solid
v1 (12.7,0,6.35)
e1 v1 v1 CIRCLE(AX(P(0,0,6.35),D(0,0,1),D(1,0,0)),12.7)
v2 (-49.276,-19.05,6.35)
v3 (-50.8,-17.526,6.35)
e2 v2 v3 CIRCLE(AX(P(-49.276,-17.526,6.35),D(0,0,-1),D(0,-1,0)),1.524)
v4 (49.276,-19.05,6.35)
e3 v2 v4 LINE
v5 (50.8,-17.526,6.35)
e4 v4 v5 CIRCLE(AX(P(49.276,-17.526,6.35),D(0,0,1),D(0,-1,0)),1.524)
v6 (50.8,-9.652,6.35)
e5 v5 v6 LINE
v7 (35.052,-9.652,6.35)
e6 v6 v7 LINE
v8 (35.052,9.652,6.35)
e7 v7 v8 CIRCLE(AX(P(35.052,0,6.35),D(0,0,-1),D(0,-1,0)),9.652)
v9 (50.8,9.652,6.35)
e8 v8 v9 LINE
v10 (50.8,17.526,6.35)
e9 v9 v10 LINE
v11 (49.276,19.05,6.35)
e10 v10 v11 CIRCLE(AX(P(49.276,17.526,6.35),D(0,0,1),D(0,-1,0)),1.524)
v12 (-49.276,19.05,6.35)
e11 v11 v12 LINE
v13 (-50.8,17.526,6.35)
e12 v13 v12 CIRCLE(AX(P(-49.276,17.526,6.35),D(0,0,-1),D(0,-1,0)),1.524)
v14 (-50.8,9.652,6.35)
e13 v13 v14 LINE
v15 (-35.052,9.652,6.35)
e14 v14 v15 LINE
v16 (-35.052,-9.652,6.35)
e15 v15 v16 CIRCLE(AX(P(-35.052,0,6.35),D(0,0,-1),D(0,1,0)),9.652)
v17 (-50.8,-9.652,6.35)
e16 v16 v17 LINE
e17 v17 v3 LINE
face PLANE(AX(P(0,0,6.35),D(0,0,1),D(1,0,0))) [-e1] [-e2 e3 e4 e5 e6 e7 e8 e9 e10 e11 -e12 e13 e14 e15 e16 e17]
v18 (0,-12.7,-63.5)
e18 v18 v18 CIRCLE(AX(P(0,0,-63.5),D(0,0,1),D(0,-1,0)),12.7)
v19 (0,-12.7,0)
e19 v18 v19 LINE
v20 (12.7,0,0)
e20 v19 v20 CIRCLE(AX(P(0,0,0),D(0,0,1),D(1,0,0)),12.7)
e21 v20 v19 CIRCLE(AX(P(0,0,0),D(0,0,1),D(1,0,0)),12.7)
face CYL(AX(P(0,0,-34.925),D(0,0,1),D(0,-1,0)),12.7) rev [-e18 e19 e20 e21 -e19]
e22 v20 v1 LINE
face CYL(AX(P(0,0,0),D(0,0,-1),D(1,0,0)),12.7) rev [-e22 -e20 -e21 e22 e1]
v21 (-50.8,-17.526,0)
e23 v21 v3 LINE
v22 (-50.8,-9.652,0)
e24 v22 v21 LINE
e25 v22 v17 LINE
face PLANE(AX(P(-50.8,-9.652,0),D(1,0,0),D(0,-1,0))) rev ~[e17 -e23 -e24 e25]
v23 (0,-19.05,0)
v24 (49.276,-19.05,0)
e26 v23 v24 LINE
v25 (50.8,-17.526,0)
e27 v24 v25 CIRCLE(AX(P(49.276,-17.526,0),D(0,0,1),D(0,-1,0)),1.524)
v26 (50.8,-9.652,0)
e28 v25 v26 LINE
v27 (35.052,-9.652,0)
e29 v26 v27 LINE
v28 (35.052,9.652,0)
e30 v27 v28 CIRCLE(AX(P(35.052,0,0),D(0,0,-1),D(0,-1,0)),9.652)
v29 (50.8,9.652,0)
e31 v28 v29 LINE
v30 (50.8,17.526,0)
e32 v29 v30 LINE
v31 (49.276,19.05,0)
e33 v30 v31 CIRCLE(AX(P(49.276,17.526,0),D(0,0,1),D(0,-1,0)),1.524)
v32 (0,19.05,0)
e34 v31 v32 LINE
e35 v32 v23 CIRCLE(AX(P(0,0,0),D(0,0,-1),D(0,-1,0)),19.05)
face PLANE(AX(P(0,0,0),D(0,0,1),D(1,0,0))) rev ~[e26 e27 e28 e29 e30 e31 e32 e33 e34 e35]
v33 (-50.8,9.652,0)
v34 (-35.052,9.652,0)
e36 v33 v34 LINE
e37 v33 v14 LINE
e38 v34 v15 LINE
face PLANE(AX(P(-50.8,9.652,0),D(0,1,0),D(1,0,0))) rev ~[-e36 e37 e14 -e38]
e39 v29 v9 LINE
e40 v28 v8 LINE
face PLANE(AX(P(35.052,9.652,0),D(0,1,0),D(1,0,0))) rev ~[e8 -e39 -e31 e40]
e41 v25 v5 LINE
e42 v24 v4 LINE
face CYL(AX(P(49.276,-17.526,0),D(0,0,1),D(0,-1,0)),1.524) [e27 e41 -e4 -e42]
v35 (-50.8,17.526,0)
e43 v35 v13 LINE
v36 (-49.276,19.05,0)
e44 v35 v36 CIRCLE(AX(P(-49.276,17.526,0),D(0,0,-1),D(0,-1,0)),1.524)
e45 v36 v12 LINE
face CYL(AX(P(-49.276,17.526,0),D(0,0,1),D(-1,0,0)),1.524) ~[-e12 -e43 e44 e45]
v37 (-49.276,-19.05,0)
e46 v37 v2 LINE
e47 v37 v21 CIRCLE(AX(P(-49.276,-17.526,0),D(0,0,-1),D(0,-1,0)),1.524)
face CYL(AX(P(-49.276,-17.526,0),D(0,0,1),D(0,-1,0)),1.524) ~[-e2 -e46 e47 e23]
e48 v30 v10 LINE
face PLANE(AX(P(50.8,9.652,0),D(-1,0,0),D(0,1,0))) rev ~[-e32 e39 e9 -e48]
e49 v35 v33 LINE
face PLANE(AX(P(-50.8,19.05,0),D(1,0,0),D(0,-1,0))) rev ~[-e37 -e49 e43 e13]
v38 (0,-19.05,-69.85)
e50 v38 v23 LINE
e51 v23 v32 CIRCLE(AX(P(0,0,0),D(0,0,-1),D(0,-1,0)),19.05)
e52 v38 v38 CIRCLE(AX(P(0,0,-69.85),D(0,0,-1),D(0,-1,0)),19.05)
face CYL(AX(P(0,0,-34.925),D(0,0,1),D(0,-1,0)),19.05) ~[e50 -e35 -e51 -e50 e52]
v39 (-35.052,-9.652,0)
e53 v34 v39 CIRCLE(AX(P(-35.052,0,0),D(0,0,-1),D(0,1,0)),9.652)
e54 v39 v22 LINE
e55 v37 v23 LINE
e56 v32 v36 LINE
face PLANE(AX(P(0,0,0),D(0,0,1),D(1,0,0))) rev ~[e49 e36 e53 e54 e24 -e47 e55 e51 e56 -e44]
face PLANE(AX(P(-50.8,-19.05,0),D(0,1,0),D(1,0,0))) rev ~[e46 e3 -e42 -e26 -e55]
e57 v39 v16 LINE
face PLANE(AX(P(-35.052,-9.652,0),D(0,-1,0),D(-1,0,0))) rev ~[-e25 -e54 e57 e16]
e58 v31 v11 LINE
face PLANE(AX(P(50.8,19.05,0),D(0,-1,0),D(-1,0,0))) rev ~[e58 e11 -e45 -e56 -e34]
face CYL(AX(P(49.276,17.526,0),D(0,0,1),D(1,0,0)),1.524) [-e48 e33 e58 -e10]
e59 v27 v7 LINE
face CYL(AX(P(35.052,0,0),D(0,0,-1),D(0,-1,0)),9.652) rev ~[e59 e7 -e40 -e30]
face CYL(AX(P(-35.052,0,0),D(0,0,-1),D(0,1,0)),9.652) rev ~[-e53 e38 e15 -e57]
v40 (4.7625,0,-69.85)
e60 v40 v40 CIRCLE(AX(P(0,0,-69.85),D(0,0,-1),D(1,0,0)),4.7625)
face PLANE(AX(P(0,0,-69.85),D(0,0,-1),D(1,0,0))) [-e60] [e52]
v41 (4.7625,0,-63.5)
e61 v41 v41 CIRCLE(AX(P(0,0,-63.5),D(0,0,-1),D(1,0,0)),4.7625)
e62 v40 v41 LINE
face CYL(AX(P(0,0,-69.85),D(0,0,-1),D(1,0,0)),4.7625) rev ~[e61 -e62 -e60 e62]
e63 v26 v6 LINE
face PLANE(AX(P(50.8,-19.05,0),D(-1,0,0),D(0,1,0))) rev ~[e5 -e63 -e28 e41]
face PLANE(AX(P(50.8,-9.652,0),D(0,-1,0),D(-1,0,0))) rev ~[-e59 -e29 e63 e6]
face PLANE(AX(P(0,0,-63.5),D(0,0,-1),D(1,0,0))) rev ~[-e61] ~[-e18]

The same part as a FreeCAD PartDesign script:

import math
import FreeCAD as App
import Part
import Sketcher

V = App.Vector
Q = App.Units.Quantity


def edges_at(feature, points):
    """Names of the edges that pass closest to the given points."""
    edges = feature.Shape.Edges
    near = lambda p: min(range(len(edges)), key=lambda i: edges[i].distToShape(Part.Vertex(*p))[0])
    return sorted({f"Edge{near(p) + 1}" for p in points})


def add_polygon(sketch, points):
    """Adds a closed chain of lines whose ends are joined by coincident constraints."""
    first, n = sketch.GeometryCount, len(points)
    for a, b in zip(points, points[1:] + points[:1]):
        sketch.addGeometry(Part.LineSegment(App.Vector(*a, 0), App.Vector(*b, 0)), False)
    for i in range(n):
        sketch.addConstraint(Sketcher.Constraint("Coincident", first + i, 2, first + (i + 1) % n, 1))

doc = App.newDocument("Part")
body = doc.addObject("PartDesign::Body", "Body")

sketch1 = body.newObject("Sketcher::SketchObject", "Sketch")
sketch1.AttachmentSupport = (doc.getObject("XY_Plane"), [""])
sketch1.MapMode = "FlatFace"
sketch1.addGeometry(Part.LineSegment(V(-50.8, -19.05, 0), V(50.8, -19.05, 0)), False)
sketch1.addGeometry(Part.LineSegment(V(50.8, -19.05, 0), V(50.8, -9.652, 0)), False)
sketch1.addGeometry(Part.LineSegment(V(50.8, -9.652, 0), V(35.052, -9.652, 0)), False)
sketch1.addGeometry(Part.ArcOfCircle(Part.Circle(V(35.052, 0, 0), V(0, 0, 1), 9.652), math.radians(90), math.radians(270)), False)
sketch1.addGeometry(Part.LineSegment(V(35.052, 9.652, 0), V(50.8, 9.652, 0)), False)
sketch1.addGeometry(Part.LineSegment(V(50.8, 9.652, 0), V(50.8, 19.05, 0)), False)
sketch1.addGeometry(Part.LineSegment(V(50.8, 19.05, 0), V(-50.8, 19.05, 0)), False)
sketch1.addGeometry(Part.LineSegment(V(-50.8, 19.05, 0), V(-50.8, 9.652, 0)), False)
sketch1.addGeometry(Part.LineSegment(V(-50.8, 9.652, 0), V(-35.052, 9.652, 0)), False)
sketch1.addGeometry(Part.ArcOfCircle(Part.Circle(V(-35.052, 0, 0), V(0, 0, 1), 9.652), math.radians(-90), math.radians(90)), False)
sketch1.addGeometry(Part.LineSegment(V(-35.052, -9.652, 0), V(-50.8, -9.652, 0)), False)
sketch1.addGeometry(Part.LineSegment(V(-50.8, -9.652, 0), V(-50.8, -19.05, 0)), False)
sketch1.addGeometry(Part.Circle(V(0, 0, 0), V(0, 0, 1), 12.7), False)
sketch1.addConstraint(Sketcher.Constraint("Coincident", 0, 2, 1, 1))
sketch1.addConstraint(Sketcher.Constraint("Coincident", 1, 2, 2, 1))
sketch1.addConstraint(Sketcher.Constraint("Tangent", 2, 2, 3, 2))
sketch1.addConstraint(Sketcher.Constraint("Tangent", 3, 1, 4, 1))
sketch1.addConstraint(Sketcher.Constraint("Coincident", 4, 2, 5, 1))
sketch1.addConstraint(Sketcher.Constraint("Coincident", 5, 2, 6, 1))
sketch1.addConstraint(Sketcher.Constraint("Coincident", 6, 2, 7, 1))
sketch1.addConstraint(Sketcher.Constraint("Coincident", 7, 2, 8, 1))
sketch1.addConstraint(Sketcher.Constraint("Tangent", 8, 2, 9, 2))
sketch1.addConstraint(Sketcher.Constraint("Tangent", 9, 1, 10, 1))
sketch1.addConstraint(Sketcher.Constraint("Coincident", 10, 2, 11, 1))
sketch1.addConstraint(Sketcher.Constraint("Coincident", 11, 2, 0, 1))
sketch1.addConstraint(Sketcher.Constraint("Horizontal", 0))
sketch1.addConstraint(Sketcher.Constraint("Vertical", 1))
sketch1.addConstraint(Sketcher.Constraint("Horizontal", 2))
sketch1.addConstraint(Sketcher.Constraint("Horizontal", 4))
sketch1.addConstraint(Sketcher.Constraint("Vertical", 5))
sketch1.addConstraint(Sketcher.Constraint("Horizontal", 6))
sketch1.addConstraint(Sketcher.Constraint("Vertical", 7))
sketch1.addConstraint(Sketcher.Constraint("Horizontal", 8))
sketch1.addConstraint(Sketcher.Constraint("Horizontal", 10))
sketch1.addConstraint(Sketcher.Constraint("Vertical", 11))
sketch1.addConstraint(Sketcher.Constraint("Coincident", 12, 3, -1, 1))
sketch1.addConstraint(Sketcher.Constraint("Equal", 3, 9))
sketch1.addConstraint(Sketcher.Constraint("Symmetric", 3, 3, 9, 3, -1, 1))
sketch1.addConstraint(Sketcher.Constraint("Symmetric", 0, 2, 6, 2, -1, 1))
sketch1.addConstraint(Sketcher.Constraint("Symmetric", 4, 2, 7, 2, -2))
sketch1.addConstraint(Sketcher.Constraint("Vertical", 7, 2, 10, 2))
sketch1.addConstraint(Sketcher.Constraint("Diameter", 12, Q("1 in")))
sketch1.addConstraint(Sketcher.Constraint("DistanceX", 0, 1, 0, 2, Q("4 in")))
sketch1.addConstraint(Sketcher.Constraint("Radius", 3, Q("0.38 in")))
sketch1.addConstraint(Sketcher.Constraint("DistanceX", 2, 2, 2, 1, Q("0.62 in")))
sketch1.addConstraint(Sketcher.Constraint("DistanceY", 1, 1, 1, 2, Q("0.37 in")))
pad1 = body.newObject("PartDesign::Pad", "Pad")
pad1.Profile = sketch1
pad1.Length = Q("0.25 in")
doc.recompute()

fillet = body.newObject("PartDesign::Fillet", "Fillet")
fillet.Base = (pad1, edges_at(pad1, [
    (-50.8, 19.05, 3.175),
    (50.8, 19.05, 3.175),
    (50.8, -19.05, 3.175),
    (-50.8, -19.05, 3.175),
]))
fillet.Radius = Q("0.06 in")

sketch2 = body.newObject("Sketcher::SketchObject", "Sketch001")
sketch2.AttachmentSupport = (doc.getObject("YZ_Plane"), [""])
sketch2.MapMode = "FlatFace"
add_polygon(sketch2, [(-19.05, 0), (-19.05, -69.85), (-12.7, -69.85), (-12.7, 0)])
sketch2.addConstraint(Sketcher.Constraint("Vertical", 0))
sketch2.addConstraint(Sketcher.Constraint("Horizontal", 1))
sketch2.addConstraint(Sketcher.Constraint("Vertical", 2))
sketch2.addConstraint(Sketcher.Constraint("Horizontal", 3))
sketch2.addConstraint(Sketcher.Constraint("PointOnObject", 2, 2, -1))
sketch2.addConstraint(Sketcher.Constraint("DistanceX", 1, 1, 1, 2, Q("0.25 in")))
sketch2.addConstraint(Sketcher.Constraint("DistanceY", 0, 2, 0, 1, Q("2.75 in")))
sketch2.addConstraint(Sketcher.Constraint("DistanceX", 1, 2, -1, 1, Q("0.5 in")))
revolution = body.newObject("PartDesign::Revolution", "Revolution")
revolution.Profile = sketch2
revolution.ReferenceAxis = (sketch2, ["V_Axis"])
revolution.Angle = 360

sketch3 = body.newObject("Sketcher::SketchObject", "Sketch002")
sketch3.AttachmentSupport = (doc.getObject("XY_Plane"), [""])
sketch3.MapMode = "FlatFace"
sketch3.AttachmentOffset = App.Placement(V(0, 0, -2.75 * 25.4), App.Rotation())
sketch3.addGeometry(Part.Circle(V(0, 0, 0), V(0, 0, 1), 12.7), False)
sketch3.addGeometry(Part.Circle(V(0, 0, 0), V(0, 0, 1), 4.7625), False)
sketch3.addConstraint(Sketcher.Constraint("Coincident", 0, 3, -1, 1))
sketch3.addConstraint(Sketcher.Constraint("Coincident", 1, 3, -1, 1))
sketch3.addConstraint(Sketcher.Constraint("Diameter", 0, Q("1 in")))
sketch3.addConstraint(Sketcher.Constraint("Diameter", 1, Q("0.375 in")))
pad2 = body.newObject("PartDesign::Pad", "Pad001")
pad2.Profile = sketch3
pad2.Length = Q("0.25 in")

doc.recompute()
